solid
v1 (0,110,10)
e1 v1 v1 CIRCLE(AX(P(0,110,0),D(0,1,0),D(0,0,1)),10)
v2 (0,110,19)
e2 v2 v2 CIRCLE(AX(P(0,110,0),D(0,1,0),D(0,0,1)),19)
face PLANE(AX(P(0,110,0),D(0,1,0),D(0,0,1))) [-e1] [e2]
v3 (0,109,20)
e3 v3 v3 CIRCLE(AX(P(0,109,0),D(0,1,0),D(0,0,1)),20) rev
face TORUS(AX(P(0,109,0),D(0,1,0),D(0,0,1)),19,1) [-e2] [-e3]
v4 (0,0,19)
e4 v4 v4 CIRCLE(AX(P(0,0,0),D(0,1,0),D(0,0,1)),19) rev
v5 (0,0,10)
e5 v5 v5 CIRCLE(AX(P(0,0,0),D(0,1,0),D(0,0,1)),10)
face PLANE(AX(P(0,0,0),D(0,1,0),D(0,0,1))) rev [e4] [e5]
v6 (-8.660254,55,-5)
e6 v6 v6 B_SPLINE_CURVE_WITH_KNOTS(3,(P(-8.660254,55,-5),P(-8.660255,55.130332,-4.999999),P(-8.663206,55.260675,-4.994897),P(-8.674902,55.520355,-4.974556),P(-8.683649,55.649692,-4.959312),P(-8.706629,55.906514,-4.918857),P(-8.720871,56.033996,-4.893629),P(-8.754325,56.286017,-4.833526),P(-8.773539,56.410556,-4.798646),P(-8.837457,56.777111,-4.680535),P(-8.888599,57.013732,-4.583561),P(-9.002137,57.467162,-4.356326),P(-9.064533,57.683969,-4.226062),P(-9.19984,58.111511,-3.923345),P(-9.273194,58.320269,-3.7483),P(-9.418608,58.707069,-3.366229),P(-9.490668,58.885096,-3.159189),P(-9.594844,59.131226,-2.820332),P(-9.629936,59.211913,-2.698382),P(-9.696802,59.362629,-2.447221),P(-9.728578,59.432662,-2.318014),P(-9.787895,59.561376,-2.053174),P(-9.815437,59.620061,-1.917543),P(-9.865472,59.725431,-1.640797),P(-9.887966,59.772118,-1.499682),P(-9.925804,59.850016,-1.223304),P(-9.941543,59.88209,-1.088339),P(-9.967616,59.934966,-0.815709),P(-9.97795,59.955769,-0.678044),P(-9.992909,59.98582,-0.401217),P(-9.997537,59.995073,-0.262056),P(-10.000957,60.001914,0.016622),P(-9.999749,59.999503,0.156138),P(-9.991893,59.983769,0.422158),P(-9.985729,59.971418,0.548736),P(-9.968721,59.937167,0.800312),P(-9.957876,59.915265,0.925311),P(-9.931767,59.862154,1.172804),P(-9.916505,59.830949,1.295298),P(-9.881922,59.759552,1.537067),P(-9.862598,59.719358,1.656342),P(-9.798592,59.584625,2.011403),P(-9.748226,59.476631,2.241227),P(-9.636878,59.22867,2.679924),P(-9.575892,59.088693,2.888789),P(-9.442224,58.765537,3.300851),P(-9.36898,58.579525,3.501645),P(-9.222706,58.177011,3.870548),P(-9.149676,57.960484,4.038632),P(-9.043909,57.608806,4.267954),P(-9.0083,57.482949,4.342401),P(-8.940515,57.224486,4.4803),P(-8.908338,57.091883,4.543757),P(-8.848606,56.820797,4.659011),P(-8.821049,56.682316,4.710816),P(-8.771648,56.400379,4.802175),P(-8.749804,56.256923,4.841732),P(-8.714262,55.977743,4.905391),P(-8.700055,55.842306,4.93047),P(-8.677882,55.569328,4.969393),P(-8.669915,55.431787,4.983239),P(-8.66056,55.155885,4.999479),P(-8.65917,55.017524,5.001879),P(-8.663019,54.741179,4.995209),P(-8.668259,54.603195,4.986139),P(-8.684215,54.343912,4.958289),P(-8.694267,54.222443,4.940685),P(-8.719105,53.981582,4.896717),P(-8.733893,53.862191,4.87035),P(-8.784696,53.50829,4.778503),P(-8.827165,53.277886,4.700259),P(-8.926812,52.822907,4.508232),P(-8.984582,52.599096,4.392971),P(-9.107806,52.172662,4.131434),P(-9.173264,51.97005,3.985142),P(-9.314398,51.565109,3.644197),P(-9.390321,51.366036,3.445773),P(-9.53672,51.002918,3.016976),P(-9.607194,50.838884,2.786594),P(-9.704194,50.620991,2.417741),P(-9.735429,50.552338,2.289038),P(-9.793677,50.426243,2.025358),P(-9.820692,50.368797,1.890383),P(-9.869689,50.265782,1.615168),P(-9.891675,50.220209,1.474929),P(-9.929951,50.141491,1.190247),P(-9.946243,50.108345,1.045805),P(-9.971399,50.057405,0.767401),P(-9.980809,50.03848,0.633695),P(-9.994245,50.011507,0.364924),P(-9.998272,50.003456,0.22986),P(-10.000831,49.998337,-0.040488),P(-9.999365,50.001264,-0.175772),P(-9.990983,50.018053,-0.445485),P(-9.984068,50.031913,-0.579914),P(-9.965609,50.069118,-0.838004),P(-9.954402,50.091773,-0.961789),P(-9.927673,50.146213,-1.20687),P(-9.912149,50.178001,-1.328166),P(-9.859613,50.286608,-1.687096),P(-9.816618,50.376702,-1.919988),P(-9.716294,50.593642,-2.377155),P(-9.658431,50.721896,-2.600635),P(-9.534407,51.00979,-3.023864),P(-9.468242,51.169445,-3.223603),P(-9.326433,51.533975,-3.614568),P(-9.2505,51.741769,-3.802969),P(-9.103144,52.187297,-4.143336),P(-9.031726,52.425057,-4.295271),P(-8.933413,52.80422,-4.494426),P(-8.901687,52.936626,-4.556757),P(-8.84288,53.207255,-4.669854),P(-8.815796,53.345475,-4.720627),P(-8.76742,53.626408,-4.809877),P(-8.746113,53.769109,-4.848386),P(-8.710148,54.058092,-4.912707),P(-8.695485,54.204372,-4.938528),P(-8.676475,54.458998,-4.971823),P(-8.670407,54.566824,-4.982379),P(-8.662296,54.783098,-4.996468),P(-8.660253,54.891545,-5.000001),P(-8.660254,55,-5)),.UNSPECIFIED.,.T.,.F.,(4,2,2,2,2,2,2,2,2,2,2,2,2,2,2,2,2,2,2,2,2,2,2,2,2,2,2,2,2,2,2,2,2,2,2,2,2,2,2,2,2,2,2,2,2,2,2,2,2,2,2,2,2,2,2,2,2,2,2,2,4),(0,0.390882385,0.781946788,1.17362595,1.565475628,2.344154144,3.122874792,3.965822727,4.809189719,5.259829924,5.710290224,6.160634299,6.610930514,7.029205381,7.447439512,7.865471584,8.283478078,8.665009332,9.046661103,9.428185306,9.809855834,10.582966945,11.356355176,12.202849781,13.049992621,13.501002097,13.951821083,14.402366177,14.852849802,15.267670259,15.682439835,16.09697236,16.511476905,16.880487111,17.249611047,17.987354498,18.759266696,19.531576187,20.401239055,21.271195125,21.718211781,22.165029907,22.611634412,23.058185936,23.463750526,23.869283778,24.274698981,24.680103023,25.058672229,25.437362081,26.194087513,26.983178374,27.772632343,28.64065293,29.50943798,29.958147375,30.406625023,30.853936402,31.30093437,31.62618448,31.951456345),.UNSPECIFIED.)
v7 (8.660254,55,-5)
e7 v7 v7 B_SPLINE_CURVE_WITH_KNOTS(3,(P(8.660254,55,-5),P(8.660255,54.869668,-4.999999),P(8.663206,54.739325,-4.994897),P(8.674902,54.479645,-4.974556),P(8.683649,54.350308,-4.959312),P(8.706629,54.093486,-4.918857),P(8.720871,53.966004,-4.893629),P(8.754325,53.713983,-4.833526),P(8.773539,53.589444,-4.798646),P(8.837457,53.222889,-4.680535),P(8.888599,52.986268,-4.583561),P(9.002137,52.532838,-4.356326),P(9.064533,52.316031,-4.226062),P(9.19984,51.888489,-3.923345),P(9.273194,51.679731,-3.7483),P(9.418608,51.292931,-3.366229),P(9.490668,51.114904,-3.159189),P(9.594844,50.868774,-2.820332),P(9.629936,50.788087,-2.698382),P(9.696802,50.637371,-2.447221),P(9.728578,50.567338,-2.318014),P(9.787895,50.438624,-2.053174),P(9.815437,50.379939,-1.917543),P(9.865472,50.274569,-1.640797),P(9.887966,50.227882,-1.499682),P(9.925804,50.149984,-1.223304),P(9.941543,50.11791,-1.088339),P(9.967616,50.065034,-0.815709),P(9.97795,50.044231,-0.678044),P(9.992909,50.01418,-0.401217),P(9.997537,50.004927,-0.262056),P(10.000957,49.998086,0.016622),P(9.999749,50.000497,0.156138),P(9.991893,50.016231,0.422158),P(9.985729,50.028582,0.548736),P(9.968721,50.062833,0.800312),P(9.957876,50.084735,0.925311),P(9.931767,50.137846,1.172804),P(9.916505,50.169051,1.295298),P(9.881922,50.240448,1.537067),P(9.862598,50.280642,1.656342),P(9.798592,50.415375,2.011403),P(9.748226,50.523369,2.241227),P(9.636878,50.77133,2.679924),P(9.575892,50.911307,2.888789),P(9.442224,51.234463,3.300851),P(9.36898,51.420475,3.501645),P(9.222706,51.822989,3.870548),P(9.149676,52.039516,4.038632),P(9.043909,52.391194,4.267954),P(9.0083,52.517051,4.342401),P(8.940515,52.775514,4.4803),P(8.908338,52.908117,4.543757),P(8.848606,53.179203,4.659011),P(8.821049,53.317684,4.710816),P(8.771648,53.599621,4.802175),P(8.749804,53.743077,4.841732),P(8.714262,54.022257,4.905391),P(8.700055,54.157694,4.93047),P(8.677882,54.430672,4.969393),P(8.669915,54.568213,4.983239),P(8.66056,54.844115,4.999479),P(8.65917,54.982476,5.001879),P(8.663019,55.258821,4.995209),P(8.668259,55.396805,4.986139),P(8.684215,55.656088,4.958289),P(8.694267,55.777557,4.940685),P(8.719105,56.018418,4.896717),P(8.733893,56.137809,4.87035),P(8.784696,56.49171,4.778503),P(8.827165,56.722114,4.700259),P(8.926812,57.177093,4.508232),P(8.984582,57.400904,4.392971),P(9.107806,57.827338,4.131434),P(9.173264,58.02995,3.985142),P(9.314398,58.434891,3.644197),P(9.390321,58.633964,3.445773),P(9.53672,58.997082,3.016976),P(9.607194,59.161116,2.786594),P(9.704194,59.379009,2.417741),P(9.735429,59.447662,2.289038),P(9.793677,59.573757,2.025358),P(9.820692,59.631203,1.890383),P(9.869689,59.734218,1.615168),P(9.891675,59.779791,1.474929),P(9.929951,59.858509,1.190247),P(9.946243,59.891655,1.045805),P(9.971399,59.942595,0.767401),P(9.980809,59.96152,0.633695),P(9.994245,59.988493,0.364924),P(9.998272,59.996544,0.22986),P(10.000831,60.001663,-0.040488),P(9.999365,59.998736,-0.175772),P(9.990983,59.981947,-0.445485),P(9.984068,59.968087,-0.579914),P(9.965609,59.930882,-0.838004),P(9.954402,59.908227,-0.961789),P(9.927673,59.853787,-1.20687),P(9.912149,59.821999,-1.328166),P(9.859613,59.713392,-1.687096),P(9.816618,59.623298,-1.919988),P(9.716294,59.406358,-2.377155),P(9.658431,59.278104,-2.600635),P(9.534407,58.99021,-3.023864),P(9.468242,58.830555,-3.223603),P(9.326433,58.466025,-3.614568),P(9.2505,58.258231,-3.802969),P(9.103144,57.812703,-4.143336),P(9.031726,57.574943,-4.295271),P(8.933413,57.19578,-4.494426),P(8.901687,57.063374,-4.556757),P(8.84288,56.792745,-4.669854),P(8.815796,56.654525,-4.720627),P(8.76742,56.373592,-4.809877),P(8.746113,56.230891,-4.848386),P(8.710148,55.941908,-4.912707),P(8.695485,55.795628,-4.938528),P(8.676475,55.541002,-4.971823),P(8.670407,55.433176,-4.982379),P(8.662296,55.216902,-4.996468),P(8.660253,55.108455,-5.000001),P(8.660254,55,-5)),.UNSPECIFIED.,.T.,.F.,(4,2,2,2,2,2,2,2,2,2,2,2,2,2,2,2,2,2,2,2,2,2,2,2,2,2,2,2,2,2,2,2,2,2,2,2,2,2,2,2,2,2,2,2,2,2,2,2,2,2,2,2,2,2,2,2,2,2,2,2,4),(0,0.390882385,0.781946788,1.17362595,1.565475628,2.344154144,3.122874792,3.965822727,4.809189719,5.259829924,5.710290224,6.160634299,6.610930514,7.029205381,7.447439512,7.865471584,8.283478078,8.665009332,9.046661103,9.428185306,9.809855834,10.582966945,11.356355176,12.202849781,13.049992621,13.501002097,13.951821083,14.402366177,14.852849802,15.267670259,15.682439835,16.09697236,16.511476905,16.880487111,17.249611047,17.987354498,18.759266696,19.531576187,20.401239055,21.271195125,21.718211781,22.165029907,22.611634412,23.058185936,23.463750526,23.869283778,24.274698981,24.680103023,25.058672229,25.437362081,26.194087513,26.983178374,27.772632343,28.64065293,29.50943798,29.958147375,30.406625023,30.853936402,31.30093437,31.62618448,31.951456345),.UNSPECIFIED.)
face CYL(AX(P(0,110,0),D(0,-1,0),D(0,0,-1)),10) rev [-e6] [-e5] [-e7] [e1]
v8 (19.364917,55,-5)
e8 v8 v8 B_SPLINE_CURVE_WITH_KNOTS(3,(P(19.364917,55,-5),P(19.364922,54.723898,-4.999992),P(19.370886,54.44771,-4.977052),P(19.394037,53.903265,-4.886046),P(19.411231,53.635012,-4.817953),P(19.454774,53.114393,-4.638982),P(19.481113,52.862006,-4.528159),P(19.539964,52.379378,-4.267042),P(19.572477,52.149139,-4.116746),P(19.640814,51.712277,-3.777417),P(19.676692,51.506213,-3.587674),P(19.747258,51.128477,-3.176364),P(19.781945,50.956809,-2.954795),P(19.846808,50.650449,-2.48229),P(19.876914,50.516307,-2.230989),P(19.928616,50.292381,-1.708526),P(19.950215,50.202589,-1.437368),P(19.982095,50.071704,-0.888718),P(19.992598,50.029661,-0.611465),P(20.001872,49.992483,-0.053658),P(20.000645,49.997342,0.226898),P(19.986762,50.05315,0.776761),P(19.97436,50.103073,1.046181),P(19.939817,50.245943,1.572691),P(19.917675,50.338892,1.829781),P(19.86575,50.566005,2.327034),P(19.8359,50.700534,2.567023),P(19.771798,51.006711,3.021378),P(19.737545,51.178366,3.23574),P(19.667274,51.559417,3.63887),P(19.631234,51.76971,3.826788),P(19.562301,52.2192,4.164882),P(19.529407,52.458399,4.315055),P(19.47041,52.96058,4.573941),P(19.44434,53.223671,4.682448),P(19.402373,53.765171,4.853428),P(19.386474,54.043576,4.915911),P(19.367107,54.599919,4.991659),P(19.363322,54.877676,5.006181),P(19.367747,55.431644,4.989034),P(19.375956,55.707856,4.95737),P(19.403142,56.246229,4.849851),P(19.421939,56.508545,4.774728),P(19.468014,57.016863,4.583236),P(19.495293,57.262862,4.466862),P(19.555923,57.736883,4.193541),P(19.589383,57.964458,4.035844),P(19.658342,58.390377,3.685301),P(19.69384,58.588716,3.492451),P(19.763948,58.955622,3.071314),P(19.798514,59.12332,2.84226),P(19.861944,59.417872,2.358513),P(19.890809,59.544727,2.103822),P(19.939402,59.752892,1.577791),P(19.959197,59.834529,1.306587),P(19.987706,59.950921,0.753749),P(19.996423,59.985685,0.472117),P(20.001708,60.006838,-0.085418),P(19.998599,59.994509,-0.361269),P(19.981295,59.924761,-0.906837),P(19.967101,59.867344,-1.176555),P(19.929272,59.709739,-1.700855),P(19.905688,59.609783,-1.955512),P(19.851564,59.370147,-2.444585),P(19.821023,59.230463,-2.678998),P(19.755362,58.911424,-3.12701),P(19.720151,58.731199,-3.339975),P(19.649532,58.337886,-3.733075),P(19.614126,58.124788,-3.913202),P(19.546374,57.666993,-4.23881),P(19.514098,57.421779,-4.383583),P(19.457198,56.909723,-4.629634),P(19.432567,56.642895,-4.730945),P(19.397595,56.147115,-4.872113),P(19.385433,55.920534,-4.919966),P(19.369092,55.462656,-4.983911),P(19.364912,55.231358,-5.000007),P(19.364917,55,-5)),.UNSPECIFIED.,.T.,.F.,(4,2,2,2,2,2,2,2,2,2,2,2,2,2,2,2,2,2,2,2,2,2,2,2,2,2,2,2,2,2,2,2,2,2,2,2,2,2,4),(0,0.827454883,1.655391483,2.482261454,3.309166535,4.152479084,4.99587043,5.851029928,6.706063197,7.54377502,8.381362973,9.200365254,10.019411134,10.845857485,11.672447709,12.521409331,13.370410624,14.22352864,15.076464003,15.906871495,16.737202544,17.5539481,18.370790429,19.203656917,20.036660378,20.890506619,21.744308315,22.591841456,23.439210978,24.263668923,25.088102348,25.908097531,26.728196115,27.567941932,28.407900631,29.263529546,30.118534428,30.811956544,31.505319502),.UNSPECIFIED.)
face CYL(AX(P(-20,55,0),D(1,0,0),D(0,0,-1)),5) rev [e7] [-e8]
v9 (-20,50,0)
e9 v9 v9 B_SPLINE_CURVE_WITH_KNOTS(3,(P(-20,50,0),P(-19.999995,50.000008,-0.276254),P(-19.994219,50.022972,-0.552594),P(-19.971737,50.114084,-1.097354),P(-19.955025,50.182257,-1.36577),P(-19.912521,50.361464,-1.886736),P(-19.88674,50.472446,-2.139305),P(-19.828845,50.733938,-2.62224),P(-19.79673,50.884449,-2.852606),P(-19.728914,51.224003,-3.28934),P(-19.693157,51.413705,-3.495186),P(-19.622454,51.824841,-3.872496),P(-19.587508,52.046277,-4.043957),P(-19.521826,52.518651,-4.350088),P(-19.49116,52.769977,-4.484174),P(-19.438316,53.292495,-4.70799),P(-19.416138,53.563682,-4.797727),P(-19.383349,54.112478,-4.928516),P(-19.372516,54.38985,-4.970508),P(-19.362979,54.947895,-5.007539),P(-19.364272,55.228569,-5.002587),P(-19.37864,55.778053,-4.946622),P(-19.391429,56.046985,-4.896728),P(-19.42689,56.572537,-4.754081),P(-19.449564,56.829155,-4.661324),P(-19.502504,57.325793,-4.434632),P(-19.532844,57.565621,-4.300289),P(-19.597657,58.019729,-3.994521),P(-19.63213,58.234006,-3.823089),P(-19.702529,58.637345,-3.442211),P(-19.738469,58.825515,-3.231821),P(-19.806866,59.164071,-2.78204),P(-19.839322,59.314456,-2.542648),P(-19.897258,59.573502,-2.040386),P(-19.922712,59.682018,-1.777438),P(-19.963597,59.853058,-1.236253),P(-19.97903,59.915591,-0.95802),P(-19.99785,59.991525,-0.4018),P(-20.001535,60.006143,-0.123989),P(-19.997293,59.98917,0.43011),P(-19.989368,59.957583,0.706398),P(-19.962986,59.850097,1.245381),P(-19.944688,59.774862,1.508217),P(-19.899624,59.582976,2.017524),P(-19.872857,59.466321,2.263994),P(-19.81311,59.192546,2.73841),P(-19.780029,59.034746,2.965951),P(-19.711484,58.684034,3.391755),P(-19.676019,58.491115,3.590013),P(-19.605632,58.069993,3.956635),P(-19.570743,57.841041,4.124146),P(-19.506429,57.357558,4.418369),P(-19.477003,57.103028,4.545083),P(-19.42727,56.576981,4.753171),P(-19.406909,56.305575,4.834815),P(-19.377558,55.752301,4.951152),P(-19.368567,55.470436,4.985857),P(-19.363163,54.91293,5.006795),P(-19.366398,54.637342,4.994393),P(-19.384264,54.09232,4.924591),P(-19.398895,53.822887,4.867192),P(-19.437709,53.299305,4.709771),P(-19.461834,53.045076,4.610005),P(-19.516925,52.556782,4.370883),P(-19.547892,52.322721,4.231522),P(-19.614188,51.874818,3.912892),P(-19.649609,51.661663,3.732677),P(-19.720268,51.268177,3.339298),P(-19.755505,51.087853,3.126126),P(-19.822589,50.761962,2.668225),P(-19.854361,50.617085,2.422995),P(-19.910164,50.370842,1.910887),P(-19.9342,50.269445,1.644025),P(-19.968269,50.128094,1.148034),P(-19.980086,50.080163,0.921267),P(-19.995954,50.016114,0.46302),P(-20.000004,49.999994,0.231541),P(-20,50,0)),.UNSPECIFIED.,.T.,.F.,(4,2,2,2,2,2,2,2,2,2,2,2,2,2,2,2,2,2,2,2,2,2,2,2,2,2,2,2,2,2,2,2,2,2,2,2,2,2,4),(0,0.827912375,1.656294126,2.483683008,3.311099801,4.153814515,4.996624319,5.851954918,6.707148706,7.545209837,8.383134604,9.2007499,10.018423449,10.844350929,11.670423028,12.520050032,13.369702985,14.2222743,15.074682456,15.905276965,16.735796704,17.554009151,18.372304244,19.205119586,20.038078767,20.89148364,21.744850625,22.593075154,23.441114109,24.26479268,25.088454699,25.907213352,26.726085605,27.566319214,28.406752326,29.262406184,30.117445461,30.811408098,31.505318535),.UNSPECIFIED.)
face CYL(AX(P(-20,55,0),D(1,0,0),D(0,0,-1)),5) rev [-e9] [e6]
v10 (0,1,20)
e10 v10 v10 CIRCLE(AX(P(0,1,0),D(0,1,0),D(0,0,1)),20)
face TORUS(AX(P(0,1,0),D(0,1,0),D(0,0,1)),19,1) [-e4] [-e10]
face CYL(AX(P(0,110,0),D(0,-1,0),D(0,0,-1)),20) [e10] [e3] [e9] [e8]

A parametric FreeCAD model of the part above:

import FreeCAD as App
import Part
import Sketcher
from FreeCAD import Vector
Q = App.Units.Quantity


def edges_at(feature, points):
    """Names of the edges that pass closest to the given points."""
    edges = feature.Shape.Edges
    near = lambda p: min(range(len(edges)), key=lambda i: edges[i].distToShape(Part.Vertex(*p))[0])
    return sorted({f"Edge{near(p) + 1}" for p in points})

doc = App.newDocument("Part")
body = doc.addObject("PartDesign::Body", "Body")

# Sketch on XZ plane
sketch1 = doc.addObject("Sketcher::SketchObject", "Sketch")
body.addObject(sketch1)
sketch1.AttachmentSupport = (doc.XZ_Plane, [""])
sketch1.MapMode = "FlatFace"
sketch1.addGeometry(Part.Circle(Vector(0, 0, 0), Vector(0, 0, 1), 20), False)
sketch1.addGeometry(Part.Circle(Vector(0, 0, 0), Vector(0, 0, 1), 10), False)
sketch1.addConstraint(Sketcher.Constraint("Coincident", 0, 3, -1, 1))
sketch1.addConstraint(Sketcher.Constraint("Coincident", 1, 3, -1, 1))
sketch1.addConstraint(Sketcher.Constraint("Diameter", 0, Q("40 mm")))
sketch1.addConstraint(Sketcher.Constraint("Diameter", 1, Q("20 mm")))
pad1 = doc.addObject("PartDesign::Pad", "Pad")
body.addObject(pad1)
pad1.Profile = sketch1
pad1.Length = 110
pad1.Reversed = True

# Sketch on YZ plane
sketch2 = doc.addObject("Sketcher::SketchObject", "Sketch001")
body.addObject(sketch2)
sketch2.AttachmentSupport = (doc.YZ_Plane, [""])
sketch2.MapMode = "FlatFace"
sketch2.addGeometry(Part.Circle(Vector(55, 0, 0), Vector(0, 0, 1), 5), False)
sketch2.addConstraint(Sketcher.Constraint("PointOnObject", 0, 3, -1))
sketch2.addConstraint(Sketcher.Constraint("Diameter", 0, Q("10 mm")))
sketch2.addConstraint(Sketcher.Constraint("DistanceX", -1, 1, 0, 3, Q("55 mm")))
pocket1 = doc.addObject("PartDesign::Pocket", "Pocket")
body.addObject(pocket1)
pocket1.Profile = sketch2
pocket1.Type = "ThroughAll"
pocket1.Midplane = True
doc.recompute()

fillet = doc.addObject("PartDesign::Fillet", "Fillet")
body.addObject(fillet)
fillet.Base = (pocket1, edges_at(pocket1, [(-20, 0, 0), (-20, 110, 0)]))
fillet.Radius = 1

doc.recompute()
